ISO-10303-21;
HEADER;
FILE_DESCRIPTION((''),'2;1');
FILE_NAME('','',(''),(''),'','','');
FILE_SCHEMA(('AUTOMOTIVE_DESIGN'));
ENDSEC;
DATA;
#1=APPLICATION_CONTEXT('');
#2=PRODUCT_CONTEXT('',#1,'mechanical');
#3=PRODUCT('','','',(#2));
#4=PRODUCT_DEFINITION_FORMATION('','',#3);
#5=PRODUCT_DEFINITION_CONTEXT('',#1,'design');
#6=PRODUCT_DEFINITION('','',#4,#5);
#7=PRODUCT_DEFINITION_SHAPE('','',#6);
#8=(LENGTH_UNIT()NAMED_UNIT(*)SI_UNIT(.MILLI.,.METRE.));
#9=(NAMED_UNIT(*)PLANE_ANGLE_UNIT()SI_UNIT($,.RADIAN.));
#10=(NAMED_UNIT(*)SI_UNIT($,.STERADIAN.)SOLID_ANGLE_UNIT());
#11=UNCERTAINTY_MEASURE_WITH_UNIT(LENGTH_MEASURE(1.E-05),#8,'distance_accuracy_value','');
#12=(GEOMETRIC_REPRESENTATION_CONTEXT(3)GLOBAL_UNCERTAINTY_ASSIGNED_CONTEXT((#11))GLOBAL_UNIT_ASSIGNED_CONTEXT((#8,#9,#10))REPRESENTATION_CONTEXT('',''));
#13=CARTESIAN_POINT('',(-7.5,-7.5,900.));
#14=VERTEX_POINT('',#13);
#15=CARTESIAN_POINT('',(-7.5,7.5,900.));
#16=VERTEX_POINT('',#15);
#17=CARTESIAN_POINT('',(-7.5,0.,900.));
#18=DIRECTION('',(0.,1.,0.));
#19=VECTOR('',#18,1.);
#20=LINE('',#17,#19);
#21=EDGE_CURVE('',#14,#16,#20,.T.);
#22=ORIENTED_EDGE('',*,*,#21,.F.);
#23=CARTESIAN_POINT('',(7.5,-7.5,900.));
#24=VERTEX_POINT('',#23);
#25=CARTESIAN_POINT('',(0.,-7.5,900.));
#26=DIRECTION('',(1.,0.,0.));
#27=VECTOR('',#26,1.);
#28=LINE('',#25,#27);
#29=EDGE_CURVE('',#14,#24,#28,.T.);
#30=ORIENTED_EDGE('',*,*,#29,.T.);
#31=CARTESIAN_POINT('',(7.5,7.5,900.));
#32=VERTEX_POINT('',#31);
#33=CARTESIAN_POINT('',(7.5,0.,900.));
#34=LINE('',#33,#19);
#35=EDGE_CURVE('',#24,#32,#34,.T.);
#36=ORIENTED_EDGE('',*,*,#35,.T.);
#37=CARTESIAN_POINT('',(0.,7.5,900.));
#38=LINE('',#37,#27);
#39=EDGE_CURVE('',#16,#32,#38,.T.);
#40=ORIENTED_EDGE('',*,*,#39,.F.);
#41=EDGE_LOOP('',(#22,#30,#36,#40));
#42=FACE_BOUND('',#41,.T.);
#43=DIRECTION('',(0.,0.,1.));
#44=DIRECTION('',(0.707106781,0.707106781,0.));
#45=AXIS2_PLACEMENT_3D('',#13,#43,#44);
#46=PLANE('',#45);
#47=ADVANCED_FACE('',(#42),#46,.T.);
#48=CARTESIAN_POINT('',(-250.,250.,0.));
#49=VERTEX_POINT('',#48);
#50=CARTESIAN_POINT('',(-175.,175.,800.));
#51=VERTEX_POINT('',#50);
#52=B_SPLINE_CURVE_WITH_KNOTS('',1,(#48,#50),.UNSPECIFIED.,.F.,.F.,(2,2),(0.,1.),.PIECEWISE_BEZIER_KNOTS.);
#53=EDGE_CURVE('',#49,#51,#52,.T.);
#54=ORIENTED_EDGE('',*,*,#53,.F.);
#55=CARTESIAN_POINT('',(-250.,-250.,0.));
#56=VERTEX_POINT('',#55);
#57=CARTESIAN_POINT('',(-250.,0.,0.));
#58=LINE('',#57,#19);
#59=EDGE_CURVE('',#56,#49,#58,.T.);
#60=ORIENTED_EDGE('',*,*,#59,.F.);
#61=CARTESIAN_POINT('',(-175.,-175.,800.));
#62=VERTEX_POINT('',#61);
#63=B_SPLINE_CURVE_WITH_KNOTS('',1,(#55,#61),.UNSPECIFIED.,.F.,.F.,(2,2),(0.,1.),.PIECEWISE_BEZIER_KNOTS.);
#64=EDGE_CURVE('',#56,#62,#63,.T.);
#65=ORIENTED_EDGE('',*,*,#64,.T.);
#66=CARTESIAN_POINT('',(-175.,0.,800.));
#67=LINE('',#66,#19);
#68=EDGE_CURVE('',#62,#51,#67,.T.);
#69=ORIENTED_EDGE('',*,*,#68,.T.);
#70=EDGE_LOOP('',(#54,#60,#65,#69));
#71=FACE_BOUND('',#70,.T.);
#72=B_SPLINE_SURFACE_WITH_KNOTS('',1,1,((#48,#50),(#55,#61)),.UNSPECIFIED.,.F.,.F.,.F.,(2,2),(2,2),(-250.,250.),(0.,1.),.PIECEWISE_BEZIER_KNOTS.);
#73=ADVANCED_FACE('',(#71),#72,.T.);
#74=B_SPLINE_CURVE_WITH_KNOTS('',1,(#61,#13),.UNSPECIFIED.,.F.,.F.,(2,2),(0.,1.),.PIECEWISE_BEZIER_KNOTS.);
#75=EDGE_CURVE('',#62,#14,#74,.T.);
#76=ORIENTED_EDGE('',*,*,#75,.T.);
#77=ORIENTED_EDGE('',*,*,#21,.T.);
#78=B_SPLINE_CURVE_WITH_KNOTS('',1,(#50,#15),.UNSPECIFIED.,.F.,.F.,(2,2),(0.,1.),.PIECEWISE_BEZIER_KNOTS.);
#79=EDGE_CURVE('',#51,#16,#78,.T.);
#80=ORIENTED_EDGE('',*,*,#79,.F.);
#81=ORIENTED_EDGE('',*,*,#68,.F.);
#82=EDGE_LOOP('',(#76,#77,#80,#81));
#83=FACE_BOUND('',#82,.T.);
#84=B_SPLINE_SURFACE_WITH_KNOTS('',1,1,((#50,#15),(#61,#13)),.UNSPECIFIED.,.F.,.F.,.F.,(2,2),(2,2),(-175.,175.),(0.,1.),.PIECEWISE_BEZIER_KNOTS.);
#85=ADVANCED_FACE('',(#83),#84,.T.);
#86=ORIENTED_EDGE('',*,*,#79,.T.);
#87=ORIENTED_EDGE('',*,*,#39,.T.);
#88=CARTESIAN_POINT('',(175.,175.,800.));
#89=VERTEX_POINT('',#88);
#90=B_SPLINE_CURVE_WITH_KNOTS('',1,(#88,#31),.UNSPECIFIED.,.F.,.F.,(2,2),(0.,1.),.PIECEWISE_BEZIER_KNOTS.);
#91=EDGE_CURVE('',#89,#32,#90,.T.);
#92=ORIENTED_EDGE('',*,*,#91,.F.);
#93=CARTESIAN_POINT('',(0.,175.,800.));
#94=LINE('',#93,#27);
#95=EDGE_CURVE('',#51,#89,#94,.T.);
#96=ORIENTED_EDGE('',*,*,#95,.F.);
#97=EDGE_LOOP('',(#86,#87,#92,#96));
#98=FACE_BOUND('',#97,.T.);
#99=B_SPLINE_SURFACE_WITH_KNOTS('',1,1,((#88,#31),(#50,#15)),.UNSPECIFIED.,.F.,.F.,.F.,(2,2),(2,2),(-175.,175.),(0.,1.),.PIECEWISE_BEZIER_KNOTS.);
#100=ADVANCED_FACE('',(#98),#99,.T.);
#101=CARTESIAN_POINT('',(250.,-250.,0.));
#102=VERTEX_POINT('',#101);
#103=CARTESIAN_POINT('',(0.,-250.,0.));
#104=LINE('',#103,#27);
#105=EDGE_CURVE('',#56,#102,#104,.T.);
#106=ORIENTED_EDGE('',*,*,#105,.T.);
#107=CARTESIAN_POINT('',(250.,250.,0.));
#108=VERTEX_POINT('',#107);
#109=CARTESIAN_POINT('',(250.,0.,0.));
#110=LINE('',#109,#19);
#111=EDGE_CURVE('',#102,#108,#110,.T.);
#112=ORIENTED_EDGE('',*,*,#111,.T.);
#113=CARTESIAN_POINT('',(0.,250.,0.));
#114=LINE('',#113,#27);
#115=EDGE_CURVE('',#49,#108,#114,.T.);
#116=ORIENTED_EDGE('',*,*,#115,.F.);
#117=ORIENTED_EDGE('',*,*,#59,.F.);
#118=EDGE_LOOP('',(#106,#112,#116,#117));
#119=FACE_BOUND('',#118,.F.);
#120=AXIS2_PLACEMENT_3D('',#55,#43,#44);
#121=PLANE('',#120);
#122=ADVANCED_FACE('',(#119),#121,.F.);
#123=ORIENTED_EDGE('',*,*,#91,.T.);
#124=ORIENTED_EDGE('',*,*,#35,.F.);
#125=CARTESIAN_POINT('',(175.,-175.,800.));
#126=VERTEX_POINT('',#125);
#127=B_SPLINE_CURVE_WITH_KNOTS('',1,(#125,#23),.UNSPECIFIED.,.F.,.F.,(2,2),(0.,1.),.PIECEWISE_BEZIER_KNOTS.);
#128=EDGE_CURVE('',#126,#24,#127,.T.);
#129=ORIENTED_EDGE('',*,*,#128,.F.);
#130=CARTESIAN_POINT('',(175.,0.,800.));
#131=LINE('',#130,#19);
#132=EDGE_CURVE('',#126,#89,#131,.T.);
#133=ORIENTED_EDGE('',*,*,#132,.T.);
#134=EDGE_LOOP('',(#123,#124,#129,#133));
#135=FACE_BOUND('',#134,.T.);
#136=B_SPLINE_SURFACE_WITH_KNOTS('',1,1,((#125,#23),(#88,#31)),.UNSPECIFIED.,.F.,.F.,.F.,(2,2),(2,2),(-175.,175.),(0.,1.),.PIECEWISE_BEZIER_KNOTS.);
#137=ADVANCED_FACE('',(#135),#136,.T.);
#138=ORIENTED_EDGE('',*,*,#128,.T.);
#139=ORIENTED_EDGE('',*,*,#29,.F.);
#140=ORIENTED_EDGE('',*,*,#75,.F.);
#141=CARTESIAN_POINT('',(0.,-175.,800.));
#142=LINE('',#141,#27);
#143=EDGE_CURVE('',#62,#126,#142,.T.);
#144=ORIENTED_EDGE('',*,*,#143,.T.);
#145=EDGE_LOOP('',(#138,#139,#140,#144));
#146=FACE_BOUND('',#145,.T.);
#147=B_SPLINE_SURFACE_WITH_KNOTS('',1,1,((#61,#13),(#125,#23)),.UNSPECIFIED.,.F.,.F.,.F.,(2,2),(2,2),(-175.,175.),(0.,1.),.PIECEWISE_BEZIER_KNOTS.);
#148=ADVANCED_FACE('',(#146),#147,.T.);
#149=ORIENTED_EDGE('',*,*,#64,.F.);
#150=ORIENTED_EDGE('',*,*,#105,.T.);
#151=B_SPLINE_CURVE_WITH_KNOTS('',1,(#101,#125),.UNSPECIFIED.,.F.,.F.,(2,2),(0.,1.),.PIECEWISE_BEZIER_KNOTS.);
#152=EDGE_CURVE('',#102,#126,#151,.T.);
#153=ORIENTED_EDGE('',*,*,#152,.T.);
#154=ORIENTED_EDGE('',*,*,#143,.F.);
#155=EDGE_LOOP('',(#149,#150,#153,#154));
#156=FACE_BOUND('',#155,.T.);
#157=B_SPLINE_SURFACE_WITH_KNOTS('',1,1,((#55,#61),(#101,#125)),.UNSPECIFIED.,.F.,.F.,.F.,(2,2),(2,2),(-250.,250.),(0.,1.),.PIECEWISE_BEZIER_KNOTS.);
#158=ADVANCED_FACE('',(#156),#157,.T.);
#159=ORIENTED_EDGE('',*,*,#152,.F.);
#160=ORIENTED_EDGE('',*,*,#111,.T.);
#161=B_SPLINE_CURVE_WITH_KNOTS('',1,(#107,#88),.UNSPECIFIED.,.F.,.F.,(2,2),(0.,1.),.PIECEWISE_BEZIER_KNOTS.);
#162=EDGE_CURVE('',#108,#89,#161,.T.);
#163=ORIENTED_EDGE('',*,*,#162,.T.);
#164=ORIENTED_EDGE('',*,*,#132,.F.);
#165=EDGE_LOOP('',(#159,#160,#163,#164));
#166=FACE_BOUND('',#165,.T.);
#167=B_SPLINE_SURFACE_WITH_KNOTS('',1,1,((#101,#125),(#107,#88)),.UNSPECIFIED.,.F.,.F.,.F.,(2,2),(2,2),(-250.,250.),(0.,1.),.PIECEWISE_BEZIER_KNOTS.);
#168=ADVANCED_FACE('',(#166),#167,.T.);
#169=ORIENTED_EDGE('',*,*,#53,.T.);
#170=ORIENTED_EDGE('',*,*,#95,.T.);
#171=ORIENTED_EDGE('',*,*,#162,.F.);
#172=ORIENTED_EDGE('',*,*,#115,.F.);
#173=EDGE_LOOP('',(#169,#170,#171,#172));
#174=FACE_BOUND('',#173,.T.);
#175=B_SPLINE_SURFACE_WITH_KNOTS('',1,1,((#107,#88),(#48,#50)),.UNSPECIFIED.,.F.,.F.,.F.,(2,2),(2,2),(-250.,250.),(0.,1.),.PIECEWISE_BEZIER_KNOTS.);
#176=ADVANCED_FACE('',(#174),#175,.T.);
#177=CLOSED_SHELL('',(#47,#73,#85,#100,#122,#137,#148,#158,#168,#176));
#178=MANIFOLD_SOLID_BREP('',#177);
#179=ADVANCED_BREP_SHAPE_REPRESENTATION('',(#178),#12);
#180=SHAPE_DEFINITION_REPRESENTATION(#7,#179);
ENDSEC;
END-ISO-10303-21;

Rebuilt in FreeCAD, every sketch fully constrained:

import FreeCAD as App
import Part
import Sketcher
from FreeCAD import Vector


def add_polygon(sketch, points):
    """Adds a closed chain of lines whose ends are joined by coincident constraints."""
    first, n = sketch.GeometryCount, len(points)
    for a, b in zip(points, points[1:] + points[:1]):
        sketch.addGeometry(Part.LineSegment(App.Vector(*a, 0), App.Vector(*b, 0)), False)
    for i in range(n):
        sketch.addConstraint(Sketcher.Constraint("Coincident", first + i, 2, first + (i + 1) % n, 1))

doc = App.newDocument("Part")
body = doc.addObject("PartDesign::Body", "Body")

sketch1 = body.newObject("Sketcher::SketchObject", "Sketch")
sketch1.AttachmentSupport = (doc.getObject("XY_Plane"), [""])
sketch1.MapMode = "FlatFace"
add_polygon(sketch1, [(-250, 250), (-250, -250), (250, -250), (250, 250)])
sketch1.addConstraint([
    Sketcher.Constraint("Vertical", 0),
    Sketcher.Constraint("Horizontal", 1),
    Sketcher.Constraint("Vertical", 2),
    Sketcher.Constraint("Horizontal", 3),
    Sketcher.Constraint("Symmetric", 0, 2, 2, 2, -1, 1),
    Sketcher.Constraint("Equal", 3, 0),
    Sketcher.Constraint("DistanceX", 1, 1, 1, 2, 500.0),
])

sketch2 = body.newObject("Sketcher::SketchObject", "Sketch001")
sketch2.AttachmentSupport = (doc.getObject("XY_Plane"), [""])
sketch2.MapMode = "FlatFace"
sketch2.AttachmentOffset = App.Placement(Vector(0, 0, 800), App.Rotation())
add_polygon(sketch2, [(-175, 175), (-175, -175), (175, -175), (175, 175)])
sketch2.addConstraint([
    Sketcher.Constraint("Vertical", 0),
    Sketcher.Constraint("Horizontal", 1),
    Sketcher.Constraint("Vertical", 2),
    Sketcher.Constraint("Horizontal", 3),
    Sketcher.Constraint("Symmetric", 0, 2, 2, 2, -1, 1),
    Sketcher.Constraint("Equal", 3, 0),
    Sketcher.Constraint("DistanceX", 1, 1, 1, 2, 350.0),
])

additiveloft = body.newObject("PartDesign::AdditiveLoft", "AdditiveLoft")
additiveloft.Profile = sketch1
additiveloft.Sections = [sketch2]

sketch3 = body.newObject("Sketcher::SketchObject", "Sketch002")
sketch3.AttachmentSupport = (doc.getObject("XY_Plane"), [""])
sketch3.MapMode = "FlatFace"
sketch3.AttachmentOffset = App.Placement(Vector(0, 0, 800), App.Rotation())
add_polygon(sketch3, [(-175, 175), (-175, -175), (175, -175), (175, 175)])
sketch3.addConstraint([
    Sketcher.Constraint("Vertical", 0),
    Sketcher.Constraint("Horizontal", 1),
    Sketcher.Constraint("Vertical", 2),
    Sketcher.Constraint("Horizontal", 3),
    Sketcher.Constraint("Symmetric", 0, 2, 2, 2, -1, 1),
    Sketcher.Constraint("Equal", 3, 0),
    Sketcher.Constraint("DistanceX", 1, 1, 1, 2, 350.0),
])

sketch4 = body.newObject("Sketcher::SketchObject", "Sketch003")
sketch4.AttachmentSupport = (doc.getObject("XY_Plane"), [""])
sketch4.MapMode = "FlatFace"
sketch4.AttachmentOffset = App.Placement(Vector(0, 0, 900), App.Rotation())
add_polygon(sketch4, [(-8, 8), (-8, -8), (8, -8), (8, 8)])
sketch4.addConstraint([
    Sketcher.Constraint("Vertical", 0),
    Sketcher.Constraint("Horizontal", 1),
    Sketcher.Constraint("Vertical", 2),
    Sketcher.Constraint("Horizontal", 3),
    Sketcher.Constraint("Symmetric", 0, 2, 2, 2, -1, 1),
    Sketcher.Constraint("Equal", 3, 0),
    Sketcher.Constraint("DistanceX", 1, 1, 1, 2, 15.0),
])

additiveloft2 = body.newObject("PartDesign::AdditiveLoft", "AdditiveLoft001")
additiveloft2.Profile = sketch3
additiveloft2.Sections = [sketch4]

doc.recompute()
